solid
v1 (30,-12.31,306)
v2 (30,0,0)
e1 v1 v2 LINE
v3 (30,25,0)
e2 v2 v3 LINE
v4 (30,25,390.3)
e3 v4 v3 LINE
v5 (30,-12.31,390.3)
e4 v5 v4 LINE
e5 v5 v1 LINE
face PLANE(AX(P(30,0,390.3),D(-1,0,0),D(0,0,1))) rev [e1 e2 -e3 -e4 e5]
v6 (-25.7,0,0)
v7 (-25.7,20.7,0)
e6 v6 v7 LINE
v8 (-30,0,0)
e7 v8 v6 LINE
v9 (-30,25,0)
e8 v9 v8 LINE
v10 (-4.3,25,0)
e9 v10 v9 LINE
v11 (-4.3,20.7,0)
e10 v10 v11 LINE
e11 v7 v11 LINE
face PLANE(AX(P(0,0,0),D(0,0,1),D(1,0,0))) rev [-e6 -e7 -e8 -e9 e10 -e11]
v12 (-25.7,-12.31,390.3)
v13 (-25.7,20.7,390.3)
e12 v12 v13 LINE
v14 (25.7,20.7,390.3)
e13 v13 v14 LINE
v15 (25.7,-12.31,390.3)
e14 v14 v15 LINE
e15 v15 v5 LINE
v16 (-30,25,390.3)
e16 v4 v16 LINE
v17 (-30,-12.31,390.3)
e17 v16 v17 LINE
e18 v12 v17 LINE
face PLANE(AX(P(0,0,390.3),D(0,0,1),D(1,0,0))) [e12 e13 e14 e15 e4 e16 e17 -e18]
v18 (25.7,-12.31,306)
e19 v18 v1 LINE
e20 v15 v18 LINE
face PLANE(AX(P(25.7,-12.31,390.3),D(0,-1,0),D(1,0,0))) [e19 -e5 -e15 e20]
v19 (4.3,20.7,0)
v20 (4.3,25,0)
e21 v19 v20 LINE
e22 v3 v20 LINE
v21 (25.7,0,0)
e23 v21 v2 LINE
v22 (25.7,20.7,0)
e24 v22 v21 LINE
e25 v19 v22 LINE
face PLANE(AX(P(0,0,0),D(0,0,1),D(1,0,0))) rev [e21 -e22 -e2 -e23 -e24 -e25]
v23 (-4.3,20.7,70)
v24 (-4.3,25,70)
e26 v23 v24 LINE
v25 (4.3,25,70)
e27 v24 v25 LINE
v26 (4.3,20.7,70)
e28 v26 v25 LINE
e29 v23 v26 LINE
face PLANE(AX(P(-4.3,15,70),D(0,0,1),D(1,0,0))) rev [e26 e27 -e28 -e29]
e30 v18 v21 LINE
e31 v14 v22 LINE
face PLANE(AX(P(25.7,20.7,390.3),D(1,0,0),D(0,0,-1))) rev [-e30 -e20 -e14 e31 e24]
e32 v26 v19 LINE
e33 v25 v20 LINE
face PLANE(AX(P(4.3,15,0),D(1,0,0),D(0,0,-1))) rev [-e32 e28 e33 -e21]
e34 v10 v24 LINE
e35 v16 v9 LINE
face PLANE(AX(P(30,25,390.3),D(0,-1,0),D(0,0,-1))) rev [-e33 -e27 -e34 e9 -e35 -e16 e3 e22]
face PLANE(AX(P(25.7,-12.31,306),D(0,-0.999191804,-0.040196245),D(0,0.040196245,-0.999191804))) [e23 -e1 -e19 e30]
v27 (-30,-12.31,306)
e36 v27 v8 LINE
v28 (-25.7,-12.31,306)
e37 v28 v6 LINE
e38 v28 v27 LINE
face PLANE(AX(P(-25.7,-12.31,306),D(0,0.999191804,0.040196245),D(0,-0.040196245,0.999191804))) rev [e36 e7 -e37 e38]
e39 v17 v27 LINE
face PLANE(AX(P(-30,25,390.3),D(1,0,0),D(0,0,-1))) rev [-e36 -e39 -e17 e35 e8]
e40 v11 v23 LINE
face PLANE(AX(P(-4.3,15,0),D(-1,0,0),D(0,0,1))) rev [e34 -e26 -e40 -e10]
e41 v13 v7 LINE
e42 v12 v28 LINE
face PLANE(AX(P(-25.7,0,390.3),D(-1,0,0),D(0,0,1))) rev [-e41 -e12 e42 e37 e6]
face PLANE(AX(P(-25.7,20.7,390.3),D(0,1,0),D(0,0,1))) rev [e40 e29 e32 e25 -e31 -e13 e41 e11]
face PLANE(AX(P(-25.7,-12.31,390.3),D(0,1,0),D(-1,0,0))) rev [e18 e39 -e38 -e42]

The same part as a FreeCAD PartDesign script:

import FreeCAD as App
import Part
import Sketcher
from FreeCAD import Vector


def add_polygon(sketch, points):
    """Adds a closed chain of lines whose ends are joined by coincident constraints."""
    first, n = sketch.GeometryCount, len(points)
    for a, b in zip(points, points[1:] + points[:1]):
        sketch.addGeometry(Part.LineSegment(App.Vector(*a, 0), App.Vector(*b, 0)), False)
    for i in range(n):
        sketch.addConstraint(Sketcher.Constraint("Coincident", first + i, 2, first + (i + 1) % n, 1))

doc = App.newDocument("Part")
body = doc.addObject("PartDesign::Body", "Body")

# Sketch on XY plane
sketch1 = body.newObject("Sketcher::SketchObject", "Sketch")
sketch1.AttachmentSupport = (doc.getObject("XY_Plane"), [""])
sketch1.MapMode = "FlatFace"
add_polygon(sketch1, [(-30, 0), (-25.7, 0), (-25.7, 20.7), (25.7, 20.7), (25.7, 0), (30, 0), (30, 25), (-30, 25)])  # lines 0-7
sketch1.addConstraint([
    Sketcher.Constraint("Horizontal", 0),
    Sketcher.Constraint("Vertical", 1),
    Sketcher.Constraint("Horizontal", 2),
    Sketcher.Constraint("Vertical", 3),
    Sketcher.Constraint("Horizontal", 4),
    Sketcher.Constraint("Vertical", 5),
    Sketcher.Constraint("Horizontal", 6),
    Sketcher.Constraint("Vertical", 7),
    Sketcher.Constraint("Symmetric", 0, 2, 3, 2, -1, 1),
    Sketcher.Constraint("Symmetric", 4, 2, 7, 2, -2),
    Sketcher.Constraint("DistanceX", 6, 2, 6, 1, 60.0),
    Sketcher.Constraint("DistanceY", 5, 1, 5, 2, 25.0),
    Sketcher.Constraint("DistanceX", 0, 1, 0, 2, 4.3),
    Sketcher.Constraint("DistanceY", 1, 1, 1, 2, 20.7),
])
pad1 = body.newObject("PartDesign::Pad", "Pad")
pad1.Profile = sketch1
pad1.Length = 390.3

# Sketch on YZ plane
sketch2 = body.newObject("Sketcher::SketchObject", "Sketch001")
sketch2.AttachmentSupport = (doc.getObject("YZ_Plane"), [""])
sketch2.MapMode = "FlatFace"
sketch2.AttachmentOffset = App.Placement(Vector(0, 0, 30), App.Rotation())
add_polygon(sketch2, [(-12, 306), (0, 0), (0, 390), (-12, 390)])  # lines 0-3
sketch2.addConstraint([
    Sketcher.Constraint("Vertical", 1),
    Sketcher.Constraint("Horizontal", 2),
    Sketcher.Constraint("Vertical", 3),
    Sketcher.Constraint("Coincident", 0, 2, -1, 1),
    Sketcher.Constraint("DistanceY", 1, 1, 1, 2, 390.3),
    Sketcher.Constraint("DistanceY", 3, 2, 3, 1, 84.3),
    Sketcher.Constraint("DistanceX", 2, 2, 2, 1, 12.31),
])
pad2 = body.newObject("PartDesign::Pad", "Pad001")
pad2.Profile = sketch2
pad2.Length = 4.3
pad2.Reversed = True
doc.recompute()

mirrored = body.newObject("PartDesign::Mirrored", "Mirrored")
mirrored.Originals = [pad2]
mirrored.MirrorPlane = (doc.getObject("YZ_Plane"), [""])
body.Tip = mirrored

# Sketch on XZ plane
sketch3 = body.newObject("Sketcher::SketchObject", "Sketch002")
sketch3.AttachmentSupport = (doc.getObject("XZ_Plane"), [""])
sketch3.MapMode = "FlatFace"
sketch3.AttachmentOffset = App.Placement(Vector(0, 0, -25), App.Rotation())
add_polygon(sketch3, [(-4, 0), (-4, 70), (4, 70), (4, 0)])  # lines 0-3
sketch3.addConstraint([
    Sketcher.Constraint("Vertical", 0),
    Sketcher.Constraint("Horizontal", 1),
    Sketcher.Constraint("Vertical", 2),
    Sketcher.Constraint("Horizontal", 3),
    Sketcher.Constraint("Symmetric", 2, 2, 3, 2, -1, 1),
    Sketcher.Constraint("DistanceY", 0, 1, 0, 2, 70.0),
    Sketcher.Constraint("DistanceX", 1, 1, 1, 2, 8.6),
])
pocket1 = body.newObject("PartDesign::Pocket", "Pocket")
pocket1.Profile = sketch3
pocket1.Length = 10
pocket1.Reversed = True

doc.recompute()
